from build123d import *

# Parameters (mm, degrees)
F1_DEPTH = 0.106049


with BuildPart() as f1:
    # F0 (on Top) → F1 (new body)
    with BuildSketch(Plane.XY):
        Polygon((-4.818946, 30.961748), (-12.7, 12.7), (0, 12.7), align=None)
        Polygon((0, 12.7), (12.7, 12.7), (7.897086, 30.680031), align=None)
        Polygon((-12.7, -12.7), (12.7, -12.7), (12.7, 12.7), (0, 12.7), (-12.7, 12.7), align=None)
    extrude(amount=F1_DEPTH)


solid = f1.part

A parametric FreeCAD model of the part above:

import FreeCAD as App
import Part
import Sketcher
from FreeCAD import Vector
Q = App.Units.Quantity


def add_polygon(sketch, points):
    """Adds a closed chain of lines whose ends are joined by coincident constraints."""
    first, n = sketch.GeometryCount, len(points)
    for a, b in zip(points, points[1:] + points[:1]):
        sketch.addGeometry(Part.LineSegment(App.Vector(*a, 0), App.Vector(*b, 0)), False)
    for i in range(n):
        sketch.addConstraint(Sketcher.Constraint("Coincident", first + i, 2, first + (i + 1) % n, 1))

doc = App.newDocument("Part")
body = doc.addObject("PartDesign::Body", "Body")

sketch1 = body.newObject("Sketcher::SketchObject", "Sketch")
sketch1.AttachmentSupport = (doc.getObject("XY_Plane"), [""])
sketch1.MapMode = "FlatFace"
add_polygon(sketch1, [(-5, 31), (-13, 13), (-13, -13), (13, -13), (13, 13), (8, 31), (0, 13)])
sketch1.addConstraint([
    Sketcher.Constraint("Vertical", 1),
    Sketcher.Constraint("Horizontal", 2),
    Sketcher.Constraint("Vertical", 3),
    Sketcher.Constraint("Symmetric", 0, 2, 2, 2, -1, 1),
    Sketcher.Constraint("PointOnObject", 5, 2, -2),
    Sketcher.Constraint("Horizontal", 0, 2, 3, 2),
    Sketcher.Constraint("Horizontal", 3, 2, 5, 2),
    Sketcher.Constraint("Equal", 2, 1),
    Sketcher.Constraint("DistanceX", 2, 1, 2, 2, Q("1 in")),
    Sketcher.Constraint("Distance", 5, Q("19.637858 mm")),
    Sketcher.Constraint("DistanceY", -1, 1, 4, 2, Q("30.680031 mm")),
    Sketcher.Constraint("DistanceY", -1, 1, 6, 2, Q("30.961748 mm")),
    Sketcher.Constraint("Distance", 0, Q("19.889757 mm")),
])
pad1 = body.newObject("PartDesign::Pad", "Pad")
pad1.Profile = sketch1
pad1.Length = 0.106049

doc.recompute()
